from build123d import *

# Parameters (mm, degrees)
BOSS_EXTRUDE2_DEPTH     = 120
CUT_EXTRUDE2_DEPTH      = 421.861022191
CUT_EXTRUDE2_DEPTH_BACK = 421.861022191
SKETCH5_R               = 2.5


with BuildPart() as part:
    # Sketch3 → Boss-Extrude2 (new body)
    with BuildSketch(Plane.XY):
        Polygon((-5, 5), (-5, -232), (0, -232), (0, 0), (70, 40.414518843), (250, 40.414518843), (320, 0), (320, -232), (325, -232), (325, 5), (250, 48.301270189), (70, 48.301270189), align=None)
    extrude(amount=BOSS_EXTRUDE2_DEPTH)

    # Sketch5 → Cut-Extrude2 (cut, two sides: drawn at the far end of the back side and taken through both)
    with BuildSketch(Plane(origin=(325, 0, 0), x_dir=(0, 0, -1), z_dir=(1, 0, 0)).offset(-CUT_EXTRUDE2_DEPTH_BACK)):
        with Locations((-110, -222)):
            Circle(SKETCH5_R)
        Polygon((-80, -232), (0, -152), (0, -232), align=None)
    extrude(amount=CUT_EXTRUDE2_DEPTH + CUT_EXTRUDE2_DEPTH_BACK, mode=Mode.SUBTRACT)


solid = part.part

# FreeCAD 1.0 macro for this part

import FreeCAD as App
import Part
import Sketcher

V = App.Vector
Q = App.Units.Quantity

doc = App.newDocument("Part")
body = doc.addObject("PartDesign::Body", "Body")

# Sketch on XY plane
sketch1 = doc.addObject("Sketcher::SketchObject", "Sketch")
body.addObject(sketch1)
sketch1.AttachmentSupport = (doc.XY_Plane, [""])
sketch1.MapMode = "FlatFace"
sketch1.addGeometry([
    Part.LineSegment(V(-5, 5, 0), V(-5, -232, 0)),  # 0
    Part.LineSegment(V(-5, -232, 0), V(0, -232, 0)),  # 1
    Part.LineSegment(V(0, -232, 0), V(0, 0, 0)),  # 2
    Part.LineSegment(V(0, 0, 0), V(70, 40, 0)),  # 3
    Part.LineSegment(V(70, 40, 0), V(250, 40, 0)),  # 4
    Part.LineSegment(V(250, 40, 0), V(320, 0, 0)),  # 5
    Part.LineSegment(V(320, 0, 0), V(320, -232, 0)),  # 6
    Part.LineSegment(V(320, -232, 0), V(325, -232, 0)),  # 7
    Part.LineSegment(V(325, -232, 0), V(325, 5, 0)),  # 8
    Part.LineSegment(V(325, 5, 0), V(250, 48, 0)),  # 9
    Part.LineSegment(V(250, 48, 0), V(70, 48, 0)),  # 10
    Part.LineSegment(V(70, 48, 0), V(-5, 5, 0)),  # 11
], False)
sketch1.addConstraint([
    Sketcher.Constraint("Coincident", 0, 2, 1, 1),
    Sketcher.Constraint("Coincident", 1, 2, 2, 1),
    Sketcher.Constraint("Coincident", 2, 2, 3, 1),
    Sketcher.Constraint("Coincident", 3, 2, 4, 1),
    Sketcher.Constraint("Coincident", 4, 2, 5, 1),
    Sketcher.Constraint("Coincident", 5, 2, 6, 1),
    Sketcher.Constraint("Coincident", 6, 2, 7, 1),
    Sketcher.Constraint("Coincident", 7, 2, 8, 1),
    Sketcher.Constraint("Coincident", 8, 2, 9, 1),
    Sketcher.Constraint("Coincident", 9, 2, 10, 1),
    Sketcher.Constraint("Coincident", 10, 2, 11, 1),
    Sketcher.Constraint("Coincident", 11, 2, 0, 1),
    Sketcher.Constraint("Vertical", 0),
    Sketcher.Constraint("Horizontal", 1),
    Sketcher.Constraint("Vertical", 2),
    Sketcher.Constraint("Horizontal", 4),
    Sketcher.Constraint("Vertical", 6),
    Sketcher.Constraint("Horizontal", 7),
    Sketcher.Constraint("Vertical", 8),
    Sketcher.Constraint("Horizontal", 10),
    Sketcher.Constraint("Coincident", 2, 2, -1, 1),
    Sketcher.Constraint("PointOnObject", 5, 2, -1),
    Sketcher.Constraint("Parallel", 5, 9),
    Sketcher.Constraint("Parallel", 3, 11),
    Sketcher.Constraint("Horizontal", 1, 2, 6, 2),
    Sketcher.Constraint("Horizontal", 8, 2, 11, 2),
    Sketcher.Constraint("Vertical", 4, 2, 9, 2),
    Sketcher.Constraint("Vertical", 3, 2, 10, 2),
    Sketcher.Constraint("Equal", 1, 7),
    Sketcher.Constraint("DistanceX", 1, 1, 1, 2, Q("5 mm")),
    Sketcher.Constraint("DistanceX", 4, 1, 4, 2, Q("180 mm")),
    Sketcher.Constraint("DistanceY", 0, 2, 0, 1, Q("237 mm")),
    Sketcher.Constraint("DistanceY", 2, 1, 2, 2, Q("232 mm")),
    Sketcher.Constraint("Angle", 3, Q("30 deg")),
    Sketcher.Constraint("DistanceX", -1, 1, 3, 2, Q("70 mm")),
])
pad1 = doc.addObject("PartDesign::Pad", "Pad")
body.addObject(pad1)
pad1.Profile = sketch1
pad1.Length = 120

# Sketch on YZ plane
sketch2 = doc.addObject("Sketcher::SketchObject", "Sketch001")
body.addObject(sketch2)
sketch2.AttachmentSupport = (doc.YZ_Plane, [""])
sketch2.MapMode = "FlatFace"
sketch2.AttachmentOffset = App.Placement(V(0, 0, 325), App.Rotation())
sketch2.addGeometry([
    Part.Circle(V(-222, 110, 0), V(0, 0, 1), 2.5),
    Part.LineSegment(V(-152, 0, 0), V(-232, 80, 0)),
    Part.LineSegment(V(-232, 80, 0), V(-232, 0, 0)),
    Part.LineSegment(V(-232, 0, 0), V(-152, 0, 0)),
], False)
sketch2.addConstraint([
    Sketcher.Constraint("Coincident", 1, 2, 2, 1),
    Sketcher.Constraint("Coincident", 2, 2, 3, 1),
    Sketcher.Constraint("Coincident", 3, 2, 1, 1),
    Sketcher.Constraint("Vertical", 2),
    Sketcher.Constraint("Horizontal", 3),
    Sketcher.Constraint("PointOnObject", 2, 2, -1),
    Sketcher.Constraint("Equal", 3, 2),
    Sketcher.Constraint("Diameter", 0, Q("5 mm")),
    Sketcher.Constraint("DistanceX", 3, 1, 3, 2, Q("80 mm")),
    Sketcher.Constraint("DistanceX", 0, 3, -1, 1, Q("222 mm")),
    Sketcher.Constraint("DistanceY", -1, 1, 0, 3, Q("110 mm")),
    Sketcher.Constraint("DistanceX", 1, 2, -1, 1, Q("232 mm")),
])
pocket1 = doc.addObject("PartDesign::Pocket", "Pocket")
body.addObject(pocket1)
pocket1.Profile = sketch2
pocket1.Type = "ThroughAll"
pocket1.Midplane = True

doc.recompute()
